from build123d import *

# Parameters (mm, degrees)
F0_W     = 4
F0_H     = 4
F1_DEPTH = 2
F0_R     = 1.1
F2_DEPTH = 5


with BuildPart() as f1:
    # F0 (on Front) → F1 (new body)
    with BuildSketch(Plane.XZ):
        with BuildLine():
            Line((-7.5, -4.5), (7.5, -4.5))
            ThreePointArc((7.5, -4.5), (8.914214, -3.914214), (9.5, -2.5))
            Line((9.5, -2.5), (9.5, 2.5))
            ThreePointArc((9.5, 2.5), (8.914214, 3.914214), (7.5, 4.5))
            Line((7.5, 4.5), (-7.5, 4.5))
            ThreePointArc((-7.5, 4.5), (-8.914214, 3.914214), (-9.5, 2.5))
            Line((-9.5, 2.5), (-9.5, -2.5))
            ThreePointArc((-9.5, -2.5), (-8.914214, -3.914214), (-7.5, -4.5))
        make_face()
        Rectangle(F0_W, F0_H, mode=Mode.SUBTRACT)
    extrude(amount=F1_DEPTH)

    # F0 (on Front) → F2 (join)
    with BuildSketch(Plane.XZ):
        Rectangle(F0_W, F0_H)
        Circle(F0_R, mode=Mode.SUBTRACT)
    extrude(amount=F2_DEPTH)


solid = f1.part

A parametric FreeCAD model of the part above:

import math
import FreeCAD as App
import Part
import Sketcher

V = App.Vector

doc = App.newDocument("Part")
params = doc.addObject("Spreadsheet::Sheet", "Params")
for row, (alias, value) in enumerate([
    ("sketch1_radius", "1.999999 mm"),
    ("sketch1_width", "15 mm"),
    ("sketch1_width2", "4 mm"),
    ("sketch1_height", "5 mm"),
    ("pad1_length", "2 mm"),
    ("sketch2_diameter", "2.2 mm"),
    ("sketch2_width", "4 mm"),
    ("pad2_length", "5 mm"),
], start=1):
    params.set(f"A{row}", alias)
    params.set(f"B{row}", "=" + value)
    params.setAlias(f"B{row}", alias)

body = doc.addObject("PartDesign::Body", "Body")

# Sketch on XZ plane
sketch1 = doc.addObject("Sketcher::SketchObject", "Sketch")
body.addObject(sketch1)
sketch1.AttachmentSupport = (doc.XZ_Plane, [""])
sketch1.MapMode = "FlatFace"
sketch1.addGeometry([
    Part.LineSegment(V(-7.5, -4.5, 0), V(7.5, -4.5, 0)),  # 0
    Part.ArcOfCircle(Part.Circle(V(7.500001, -2.500001, 0), V(0, 0, 1), 1.999999), math.radians(-90.000043), math.radians(0.000043)),  # 1
    Part.LineSegment(V(9.5, -2.5, 0), V(9.5, 2.5, 0)),  # 2
    Part.ArcOfCircle(Part.Circle(V(7.500001, 2.500001, 0), V(0, 0, 1), 1.999999), math.radians(-0.000043), math.radians(90.000043)),  # 3
    Part.LineSegment(V(7.5, 4.5, 0), V(-7.5, 4.5, 0)),  # 4
    Part.ArcOfCircle(Part.Circle(V(-7.500001, 2.500001, 0), V(0, 0, 1), 1.999999), math.radians(89.999957), math.radians(180.000043)),  # 5
    Part.LineSegment(V(-9.5, 2.5, 0), V(-9.5, -2.5, 0)),  # 6
    Part.ArcOfCircle(Part.Circle(V(-7.500001, -2.500001, 0), V(0, 0, 1), 1.999999), math.radians(179.999957), math.radians(270.000043)),  # 7
    Part.LineSegment(V(2, -2, 0), V(-2, -2, 0)),  # 8
    Part.LineSegment(V(-2, -2, 0), V(-2, 2, 0)),  # 9
    Part.LineSegment(V(-2, 2, 0), V(2, 2, 0)),  # 10
    Part.LineSegment(V(2, 2, 0), V(2, -2, 0)),  # 11
], False)
sketch1.addConstraint([
    Sketcher.Constraint("Tangent", 0, 2, 1, 1),
    Sketcher.Constraint("Tangent", 1, 2, 2, 1),
    Sketcher.Constraint("Tangent", 2, 2, 3, 1),
    Sketcher.Constraint("Tangent", 3, 2, 4, 1),
    Sketcher.Constraint("Tangent", 4, 2, 5, 1),
    Sketcher.Constraint("Tangent", 5, 2, 6, 1),
    Sketcher.Constraint("Tangent", 6, 2, 7, 1),
    Sketcher.Constraint("Tangent", 7, 2, 0, 1),
    Sketcher.Constraint("Coincident", 8, 2, 9, 1),
    Sketcher.Constraint("Coincident", 9, 2, 10, 1),
    Sketcher.Constraint("Coincident", 10, 2, 11, 1),
    Sketcher.Constraint("Coincident", 11, 2, 8, 1),
    Sketcher.Constraint("Horizontal", 0),
    Sketcher.Constraint("Vertical", 2),
    Sketcher.Constraint("Horizontal", 4),
    Sketcher.Constraint("Vertical", 6),
    Sketcher.Constraint("Horizontal", 8),
    Sketcher.Constraint("Vertical", 9),
    Sketcher.Constraint("Horizontal", 10),
    Sketcher.Constraint("Vertical", 11),
    Sketcher.Constraint("Equal", 1, 3),
    Sketcher.Constraint("Equal", 3, 5),
    Sketcher.Constraint("Equal", 5, 7),
    Sketcher.Constraint("Symmetric", 1, 3, 5, 3, -1, 1),
    Sketcher.Constraint("Symmetric", 8, 2, 10, 2, -1, 1),
    Sketcher.Constraint("Equal", 10, 9),
    Sketcher.Constraint("Radius", 1, 1.999999),
    Sketcher.Constraint("DistanceX", 0, 1, 0, 2, 15.0),
    Sketcher.Constraint("DistanceX", 8, 2, 8, 1, 4.0),
    Sketcher.Constraint("DistanceY", 2, 1, 2, 2, 5.0),
])
sketch1.setExpression("Constraints[26]", "Params.sketch1_radius")
sketch1.setExpression("Constraints[27]", "Params.sketch1_width")
sketch1.setExpression("Constraints[28]", "Params.sketch1_width2")
sketch1.setExpression("Constraints[29]", "Params.sketch1_height")
pad1 = doc.addObject("PartDesign::Pad", "Pad")
body.addObject(pad1)
pad1.Profile = sketch1
pad1.setExpression("Length", "Params.pad1_length")

# Sketch on XZ plane
sketch2 = doc.addObject("Sketcher::SketchObject", "Sketch001")
body.addObject(sketch2)
sketch2.AttachmentSupport = (doc.XZ_Plane, [""])
sketch2.MapMode = "FlatFace"
sketch2.addGeometry([
    Part.LineSegment(V(-2, 2, 0), V(-2, -2, 0)),  # 0
    Part.LineSegment(V(-2, -2, 0), V(2, -2, 0)),  # 1
    Part.LineSegment(V(2, -2, 0), V(2, 2, 0)),  # 2
    Part.LineSegment(V(2, 2, 0), V(-2, 2, 0)),  # 3
    Part.Circle(V(0, 0, 0), V(0, 0, 1), 1.1),  # 4
], False)
sketch2.addConstraint([
    Sketcher.Constraint("Coincident", 0, 2, 1, 1),
    Sketcher.Constraint("Coincident", 1, 2, 2, 1),
    Sketcher.Constraint("Coincident", 2, 2, 3, 1),
    Sketcher.Constraint("Coincident", 3, 2, 0, 1),
    Sketcher.Constraint("Vertical", 0),
    Sketcher.Constraint("Horizontal", 1),
    Sketcher.Constraint("Vertical", 2),
    Sketcher.Constraint("Horizontal", 3),
    Sketcher.Constraint("Coincident", 4, 3, -1, 1),
    Sketcher.Constraint("Symmetric", 0, 2, 2, 2, -1, 1),
    Sketcher.Constraint("Equal", 3, 0),
    Sketcher.Constraint("Diameter", 4, 2.2),
    Sketcher.Constraint("DistanceX", 1, 1, 1, 2, 4.0),
])
sketch2.setExpression("Constraints[11]", "Params.sketch2_diameter")
sketch2.setExpression("Constraints[12]", "Params.sketch2_width")
pad2 = doc.addObject("PartDesign::Pad", "Pad001")
body.addObject(pad2)
pad2.Profile = sketch2
pad2.setExpression("Length", "Params.pad2_length")

doc.recompute()
